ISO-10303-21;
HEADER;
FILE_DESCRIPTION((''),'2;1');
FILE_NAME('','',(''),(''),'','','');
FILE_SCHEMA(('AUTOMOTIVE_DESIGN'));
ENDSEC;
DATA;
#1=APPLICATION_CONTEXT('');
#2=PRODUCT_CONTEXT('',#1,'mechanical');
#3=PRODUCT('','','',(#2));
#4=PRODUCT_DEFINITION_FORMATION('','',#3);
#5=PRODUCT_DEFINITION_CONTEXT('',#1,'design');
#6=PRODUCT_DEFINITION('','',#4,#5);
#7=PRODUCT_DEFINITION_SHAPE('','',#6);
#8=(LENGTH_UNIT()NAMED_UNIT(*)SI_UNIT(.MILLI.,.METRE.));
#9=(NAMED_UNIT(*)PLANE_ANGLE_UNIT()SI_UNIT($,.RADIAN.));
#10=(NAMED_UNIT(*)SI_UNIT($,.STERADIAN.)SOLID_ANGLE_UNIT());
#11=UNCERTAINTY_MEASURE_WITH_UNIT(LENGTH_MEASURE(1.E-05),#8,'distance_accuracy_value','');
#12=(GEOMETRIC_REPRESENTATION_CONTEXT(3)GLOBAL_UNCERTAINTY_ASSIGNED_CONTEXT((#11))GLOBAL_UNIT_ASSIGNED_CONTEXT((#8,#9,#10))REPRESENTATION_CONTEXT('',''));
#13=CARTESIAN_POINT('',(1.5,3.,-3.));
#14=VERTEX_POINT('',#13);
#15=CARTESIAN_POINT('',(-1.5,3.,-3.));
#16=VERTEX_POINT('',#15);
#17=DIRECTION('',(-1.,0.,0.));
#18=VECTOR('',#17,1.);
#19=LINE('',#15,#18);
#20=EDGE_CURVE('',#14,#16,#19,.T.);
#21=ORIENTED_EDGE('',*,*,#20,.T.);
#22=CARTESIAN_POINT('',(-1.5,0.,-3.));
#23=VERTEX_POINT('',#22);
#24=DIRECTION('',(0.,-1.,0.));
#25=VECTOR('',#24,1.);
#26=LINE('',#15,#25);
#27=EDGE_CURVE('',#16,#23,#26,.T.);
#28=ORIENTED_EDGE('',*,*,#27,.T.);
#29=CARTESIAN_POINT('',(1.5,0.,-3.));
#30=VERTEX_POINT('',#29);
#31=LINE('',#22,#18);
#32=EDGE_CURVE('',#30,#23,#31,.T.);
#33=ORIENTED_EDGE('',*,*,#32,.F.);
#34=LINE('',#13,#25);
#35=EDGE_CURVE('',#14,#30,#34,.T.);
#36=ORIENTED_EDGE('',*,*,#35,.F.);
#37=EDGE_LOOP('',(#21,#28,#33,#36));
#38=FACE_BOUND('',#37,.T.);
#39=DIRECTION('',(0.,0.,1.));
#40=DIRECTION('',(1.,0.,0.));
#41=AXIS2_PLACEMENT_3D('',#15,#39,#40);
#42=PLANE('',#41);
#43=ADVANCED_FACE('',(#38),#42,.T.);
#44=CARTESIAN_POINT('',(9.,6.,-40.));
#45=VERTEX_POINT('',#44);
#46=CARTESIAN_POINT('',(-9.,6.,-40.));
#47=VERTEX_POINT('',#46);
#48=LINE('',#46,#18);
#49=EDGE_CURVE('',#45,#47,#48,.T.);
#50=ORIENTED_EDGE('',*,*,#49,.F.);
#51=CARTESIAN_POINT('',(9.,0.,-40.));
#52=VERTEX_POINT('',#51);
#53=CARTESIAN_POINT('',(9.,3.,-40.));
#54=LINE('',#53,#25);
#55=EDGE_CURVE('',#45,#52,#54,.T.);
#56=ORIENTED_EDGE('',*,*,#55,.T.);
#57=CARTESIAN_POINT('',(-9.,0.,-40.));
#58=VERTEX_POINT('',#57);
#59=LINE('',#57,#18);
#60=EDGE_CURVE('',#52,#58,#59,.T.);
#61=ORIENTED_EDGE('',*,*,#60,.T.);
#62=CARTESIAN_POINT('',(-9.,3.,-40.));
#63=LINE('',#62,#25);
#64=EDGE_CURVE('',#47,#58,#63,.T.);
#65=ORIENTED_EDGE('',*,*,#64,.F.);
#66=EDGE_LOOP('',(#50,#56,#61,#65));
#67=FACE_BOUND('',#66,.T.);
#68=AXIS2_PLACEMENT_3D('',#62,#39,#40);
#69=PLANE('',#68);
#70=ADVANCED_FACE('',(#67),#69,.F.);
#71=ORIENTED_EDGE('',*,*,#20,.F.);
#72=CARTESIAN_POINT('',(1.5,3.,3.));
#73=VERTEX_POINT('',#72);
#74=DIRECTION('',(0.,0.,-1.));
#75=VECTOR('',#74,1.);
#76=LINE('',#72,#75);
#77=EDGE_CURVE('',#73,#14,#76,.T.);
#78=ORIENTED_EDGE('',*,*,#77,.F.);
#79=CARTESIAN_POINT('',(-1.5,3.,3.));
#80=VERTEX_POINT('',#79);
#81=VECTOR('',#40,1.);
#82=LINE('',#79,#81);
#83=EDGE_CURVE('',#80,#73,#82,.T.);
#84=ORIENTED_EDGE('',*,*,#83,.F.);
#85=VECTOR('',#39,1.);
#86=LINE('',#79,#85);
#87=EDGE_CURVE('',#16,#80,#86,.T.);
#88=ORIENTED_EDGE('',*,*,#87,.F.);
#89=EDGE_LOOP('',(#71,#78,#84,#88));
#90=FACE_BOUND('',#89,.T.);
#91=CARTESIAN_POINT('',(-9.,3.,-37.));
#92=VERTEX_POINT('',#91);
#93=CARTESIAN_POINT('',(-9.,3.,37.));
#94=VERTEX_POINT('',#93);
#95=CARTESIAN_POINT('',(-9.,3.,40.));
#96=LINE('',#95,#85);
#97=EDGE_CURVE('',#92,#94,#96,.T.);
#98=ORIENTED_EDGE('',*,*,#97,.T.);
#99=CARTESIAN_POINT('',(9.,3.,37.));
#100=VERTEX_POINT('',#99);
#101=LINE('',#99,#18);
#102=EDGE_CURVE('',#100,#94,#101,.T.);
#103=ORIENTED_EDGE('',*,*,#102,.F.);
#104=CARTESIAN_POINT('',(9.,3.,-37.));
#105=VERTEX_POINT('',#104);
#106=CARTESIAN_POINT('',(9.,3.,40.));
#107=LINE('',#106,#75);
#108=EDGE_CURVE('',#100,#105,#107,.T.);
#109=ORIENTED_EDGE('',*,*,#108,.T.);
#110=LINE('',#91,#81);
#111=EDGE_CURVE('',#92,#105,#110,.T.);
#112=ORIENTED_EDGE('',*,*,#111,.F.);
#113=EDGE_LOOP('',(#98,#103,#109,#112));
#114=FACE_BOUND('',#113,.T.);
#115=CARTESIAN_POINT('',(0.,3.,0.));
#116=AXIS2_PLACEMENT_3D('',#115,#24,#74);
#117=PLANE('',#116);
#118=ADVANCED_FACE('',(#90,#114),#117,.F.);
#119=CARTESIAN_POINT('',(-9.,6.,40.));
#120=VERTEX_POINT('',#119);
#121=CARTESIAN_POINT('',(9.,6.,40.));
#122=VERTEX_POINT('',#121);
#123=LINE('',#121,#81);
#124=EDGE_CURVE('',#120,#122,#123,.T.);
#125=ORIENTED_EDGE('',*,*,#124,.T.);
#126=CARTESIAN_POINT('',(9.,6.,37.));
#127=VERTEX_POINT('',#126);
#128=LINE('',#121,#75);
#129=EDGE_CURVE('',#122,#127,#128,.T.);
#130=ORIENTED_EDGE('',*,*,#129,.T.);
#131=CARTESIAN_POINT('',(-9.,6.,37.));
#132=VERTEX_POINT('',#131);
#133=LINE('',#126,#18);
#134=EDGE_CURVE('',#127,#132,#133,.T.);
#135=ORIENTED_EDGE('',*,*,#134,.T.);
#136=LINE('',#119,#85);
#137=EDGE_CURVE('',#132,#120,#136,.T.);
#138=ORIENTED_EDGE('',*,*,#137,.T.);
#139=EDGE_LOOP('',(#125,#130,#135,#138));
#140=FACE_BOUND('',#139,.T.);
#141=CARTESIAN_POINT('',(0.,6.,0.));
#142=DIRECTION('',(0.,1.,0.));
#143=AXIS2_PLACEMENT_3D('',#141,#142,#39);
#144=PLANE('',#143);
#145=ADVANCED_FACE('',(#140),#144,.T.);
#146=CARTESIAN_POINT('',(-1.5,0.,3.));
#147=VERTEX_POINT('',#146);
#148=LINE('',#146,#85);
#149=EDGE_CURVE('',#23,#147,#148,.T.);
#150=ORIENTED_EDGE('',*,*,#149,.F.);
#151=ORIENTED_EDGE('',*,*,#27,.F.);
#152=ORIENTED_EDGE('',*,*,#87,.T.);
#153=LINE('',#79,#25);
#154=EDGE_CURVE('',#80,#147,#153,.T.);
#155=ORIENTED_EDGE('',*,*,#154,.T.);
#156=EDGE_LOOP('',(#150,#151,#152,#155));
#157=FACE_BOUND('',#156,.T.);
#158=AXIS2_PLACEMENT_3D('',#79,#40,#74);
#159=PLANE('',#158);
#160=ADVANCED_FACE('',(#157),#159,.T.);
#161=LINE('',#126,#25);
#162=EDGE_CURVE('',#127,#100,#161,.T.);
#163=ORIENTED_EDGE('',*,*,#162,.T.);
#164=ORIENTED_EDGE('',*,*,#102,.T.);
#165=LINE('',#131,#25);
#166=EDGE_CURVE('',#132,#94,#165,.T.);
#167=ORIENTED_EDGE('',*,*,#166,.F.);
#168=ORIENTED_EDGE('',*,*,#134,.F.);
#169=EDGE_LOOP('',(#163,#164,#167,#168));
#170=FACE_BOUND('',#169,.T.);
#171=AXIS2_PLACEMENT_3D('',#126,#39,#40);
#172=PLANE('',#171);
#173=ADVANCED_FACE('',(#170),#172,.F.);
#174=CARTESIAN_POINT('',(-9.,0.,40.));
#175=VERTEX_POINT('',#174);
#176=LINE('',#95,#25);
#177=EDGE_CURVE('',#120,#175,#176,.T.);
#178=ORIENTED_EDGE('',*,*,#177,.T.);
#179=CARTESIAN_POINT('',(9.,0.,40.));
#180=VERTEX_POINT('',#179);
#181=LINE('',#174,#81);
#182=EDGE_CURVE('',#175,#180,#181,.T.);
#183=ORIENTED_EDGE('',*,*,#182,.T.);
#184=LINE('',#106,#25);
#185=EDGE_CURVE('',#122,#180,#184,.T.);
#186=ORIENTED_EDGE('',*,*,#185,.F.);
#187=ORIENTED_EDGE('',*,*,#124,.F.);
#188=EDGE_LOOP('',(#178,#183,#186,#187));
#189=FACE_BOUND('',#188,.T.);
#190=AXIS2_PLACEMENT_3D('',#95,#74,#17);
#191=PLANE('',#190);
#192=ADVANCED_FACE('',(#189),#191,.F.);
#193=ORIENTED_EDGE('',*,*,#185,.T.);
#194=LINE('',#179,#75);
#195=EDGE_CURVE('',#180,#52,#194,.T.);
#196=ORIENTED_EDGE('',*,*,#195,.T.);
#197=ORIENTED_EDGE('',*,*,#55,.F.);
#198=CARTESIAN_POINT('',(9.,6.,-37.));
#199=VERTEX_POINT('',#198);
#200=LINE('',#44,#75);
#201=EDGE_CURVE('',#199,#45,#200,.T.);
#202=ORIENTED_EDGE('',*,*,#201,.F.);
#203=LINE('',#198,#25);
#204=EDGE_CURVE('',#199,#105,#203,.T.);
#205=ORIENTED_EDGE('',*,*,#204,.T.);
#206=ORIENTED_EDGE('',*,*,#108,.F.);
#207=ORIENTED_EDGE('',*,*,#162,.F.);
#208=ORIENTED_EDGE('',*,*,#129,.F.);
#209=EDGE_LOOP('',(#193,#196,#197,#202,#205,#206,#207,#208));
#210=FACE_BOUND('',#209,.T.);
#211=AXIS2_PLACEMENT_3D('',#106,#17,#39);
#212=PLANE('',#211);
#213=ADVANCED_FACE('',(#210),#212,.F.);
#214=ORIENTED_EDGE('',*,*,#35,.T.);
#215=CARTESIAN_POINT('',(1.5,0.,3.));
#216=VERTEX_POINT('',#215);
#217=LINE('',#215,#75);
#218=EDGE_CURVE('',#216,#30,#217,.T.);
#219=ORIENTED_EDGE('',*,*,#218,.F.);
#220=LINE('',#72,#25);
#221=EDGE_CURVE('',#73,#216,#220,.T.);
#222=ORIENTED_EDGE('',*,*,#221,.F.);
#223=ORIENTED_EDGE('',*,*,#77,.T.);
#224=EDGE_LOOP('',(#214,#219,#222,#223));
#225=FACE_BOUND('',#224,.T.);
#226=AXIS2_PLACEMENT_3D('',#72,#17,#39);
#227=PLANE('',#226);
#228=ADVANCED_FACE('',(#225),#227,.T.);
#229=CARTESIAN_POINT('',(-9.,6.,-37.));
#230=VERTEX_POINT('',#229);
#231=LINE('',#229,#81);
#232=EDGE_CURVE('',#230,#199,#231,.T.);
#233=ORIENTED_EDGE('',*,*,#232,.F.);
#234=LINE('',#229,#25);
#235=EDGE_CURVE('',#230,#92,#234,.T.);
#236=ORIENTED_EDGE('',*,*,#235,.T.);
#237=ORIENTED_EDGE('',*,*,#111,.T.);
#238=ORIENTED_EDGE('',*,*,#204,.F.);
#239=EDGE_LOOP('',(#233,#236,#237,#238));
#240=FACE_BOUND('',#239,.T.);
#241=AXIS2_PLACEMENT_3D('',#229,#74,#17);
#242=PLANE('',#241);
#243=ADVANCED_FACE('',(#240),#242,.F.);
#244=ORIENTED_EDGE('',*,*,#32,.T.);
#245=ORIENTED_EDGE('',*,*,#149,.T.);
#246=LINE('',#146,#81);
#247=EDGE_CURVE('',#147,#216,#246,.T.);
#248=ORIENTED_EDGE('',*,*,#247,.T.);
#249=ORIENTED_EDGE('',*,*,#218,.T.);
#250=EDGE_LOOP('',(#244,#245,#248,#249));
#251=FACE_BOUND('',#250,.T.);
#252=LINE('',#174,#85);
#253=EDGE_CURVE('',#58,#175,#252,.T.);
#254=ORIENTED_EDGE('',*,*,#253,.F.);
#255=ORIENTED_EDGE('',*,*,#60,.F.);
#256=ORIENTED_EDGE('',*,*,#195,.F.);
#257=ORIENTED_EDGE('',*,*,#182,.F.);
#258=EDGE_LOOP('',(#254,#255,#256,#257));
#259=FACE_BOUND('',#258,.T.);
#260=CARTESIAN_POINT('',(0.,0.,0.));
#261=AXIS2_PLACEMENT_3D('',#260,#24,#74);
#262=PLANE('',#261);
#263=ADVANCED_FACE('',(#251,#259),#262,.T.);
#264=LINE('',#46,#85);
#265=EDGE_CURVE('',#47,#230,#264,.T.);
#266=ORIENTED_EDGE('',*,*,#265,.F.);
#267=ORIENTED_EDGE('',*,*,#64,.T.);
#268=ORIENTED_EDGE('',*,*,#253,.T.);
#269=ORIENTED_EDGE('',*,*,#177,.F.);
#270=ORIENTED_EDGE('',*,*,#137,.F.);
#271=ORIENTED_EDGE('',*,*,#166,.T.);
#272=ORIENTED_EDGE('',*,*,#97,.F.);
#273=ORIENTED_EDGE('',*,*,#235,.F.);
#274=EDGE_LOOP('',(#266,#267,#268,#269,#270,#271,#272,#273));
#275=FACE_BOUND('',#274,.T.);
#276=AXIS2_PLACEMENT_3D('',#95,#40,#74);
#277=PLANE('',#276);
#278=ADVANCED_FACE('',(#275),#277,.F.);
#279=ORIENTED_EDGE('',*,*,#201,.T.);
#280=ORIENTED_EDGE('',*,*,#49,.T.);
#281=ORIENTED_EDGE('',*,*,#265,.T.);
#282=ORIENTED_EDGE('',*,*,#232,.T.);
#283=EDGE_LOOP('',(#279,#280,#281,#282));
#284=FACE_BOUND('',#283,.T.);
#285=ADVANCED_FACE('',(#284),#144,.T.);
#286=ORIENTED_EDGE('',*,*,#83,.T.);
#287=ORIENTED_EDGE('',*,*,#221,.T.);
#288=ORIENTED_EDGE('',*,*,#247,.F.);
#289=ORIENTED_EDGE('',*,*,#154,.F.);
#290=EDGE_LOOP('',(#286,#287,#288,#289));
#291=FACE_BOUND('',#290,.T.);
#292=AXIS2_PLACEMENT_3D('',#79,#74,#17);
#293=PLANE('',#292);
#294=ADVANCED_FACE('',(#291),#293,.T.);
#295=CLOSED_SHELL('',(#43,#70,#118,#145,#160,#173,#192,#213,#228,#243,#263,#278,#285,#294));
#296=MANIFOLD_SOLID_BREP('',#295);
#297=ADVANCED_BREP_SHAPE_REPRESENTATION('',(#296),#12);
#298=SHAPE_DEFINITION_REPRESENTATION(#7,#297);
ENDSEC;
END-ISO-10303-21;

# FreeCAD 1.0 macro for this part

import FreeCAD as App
import Part
import Sketcher

doc = App.newDocument("Part")
body = doc.addObject("PartDesign::Body", "Body")

sketch1 = doc.addObject("Sketcher::SketchObject", "Sketch")
body.addObject(sketch1)
sketch1.AttachmentSupport = (doc.XZ_Plane, [""])
sketch1.MapMode = "FlatFace"
sketch1.addGeometry([
    Part.LineSegment(App.Vector(-9, -40, 0), App.Vector(-9, 40, 0)),
    Part.LineSegment(App.Vector(-9, 40, 0), App.Vector(9, 40, 0)),
    Part.LineSegment(App.Vector(9, 40, 0), App.Vector(9, -40, 0)),
    Part.LineSegment(App.Vector(9, -40, 0), App.Vector(-9, -40, 0)),
    Part.LineSegment(App.Vector(1.5, 3, 0), App.Vector(-1.5, 3, 0)),
    Part.LineSegment(App.Vector(-1.5, 3, 0), App.Vector(-1.5, -3, 0)),
    Part.LineSegment(App.Vector(-1.5, -3, 0), App.Vector(1.5, -3, 0)),
    Part.LineSegment(App.Vector(1.5, -3, 0), App.Vector(1.5, 3, 0)),
], False)
sketch1.addConstraint([
    Sketcher.Constraint("Coincident", 0, 2, 1, 1),
    Sketcher.Constraint("Coincident", 1, 2, 2, 1),
    Sketcher.Constraint("Coincident", 2, 2, 3, 1),
    Sketcher.Constraint("Coincident", 3, 2, 0, 1),
    Sketcher.Constraint("Coincident", 4, 2, 5, 1),
    Sketcher.Constraint("Coincident", 5, 2, 6, 1),
    Sketcher.Constraint("Coincident", 6, 2, 7, 1),
    Sketcher.Constraint("Coincident", 7, 2, 4, 1),
    Sketcher.Constraint("Vertical", 0),
    Sketcher.Constraint("Horizontal", 1),
    Sketcher.Constraint("Vertical", 2),
    Sketcher.Constraint("Horizontal", 3),
    Sketcher.Constraint("Horizontal", 4),
    Sketcher.Constraint("Vertical", 5),
    Sketcher.Constraint("Horizontal", 6),
    Sketcher.Constraint("Vertical", 7),
    Sketcher.Constraint("Symmetric", 0, 2, 2, 2, -1, 1),
    Sketcher.Constraint("Symmetric", 4, 2, 6, 2, -1, 1),
    Sketcher.Constraint("DistanceX", 1, 1, 1, 2, 18.0),
    Sketcher.Constraint("DistanceX", 4, 2, 4, 1, 3.0),
    Sketcher.Constraint("DistanceY", 0, 1, 0, 2, 80.0),
    Sketcher.Constraint("DistanceY", 5, 2, 5, 1, 6.0),
])
pad1 = doc.addObject("PartDesign::Pad", "Pad")
body.addObject(pad1)
pad1.Profile = sketch1
pad1.Length = 3
pad1.Reversed = True

sketch2 = doc.addObject("Sketcher::SketchObject", "Sketch001")
body.addObject(sketch2)
sketch2.AttachmentSupport = (doc.XZ_Plane, [""])
sketch2.MapMode = "FlatFace"
sketch2.AttachmentOffset = App.Placement(App.Vector(0, 0, -3), App.Rotation())
sketch2.addGeometry([
    Part.LineSegment(App.Vector(-9, 37, 0), App.Vector(-9, 40, 0)),
    Part.LineSegment(App.Vector(-9, 40, 0), App.Vector(9, 40, 0)),
    Part.LineSegment(App.Vector(9, 40, 0), App.Vector(9, 37, 0)),
    Part.LineSegment(App.Vector(9, 37, 0), App.Vector(-9, 37, 0)),
    Part.LineSegment(App.Vector(-9, -40, 0), App.Vector(-9, -37, 0)),
    Part.LineSegment(App.Vector(-9, -37, 0), App.Vector(9, -37, 0)),
    Part.LineSegment(App.Vector(9, -37, 0), App.Vector(9, -40, 0)),
    Part.LineSegment(App.Vector(9, -40, 0), App.Vector(-9, -40, 0)),
], False)
sketch2.addConstraint([
    Sketcher.Constraint("Coincident", 0, 2, 1, 1),
    Sketcher.Constraint("Coincident", 1, 2, 2, 1),
    Sketcher.Constraint("Coincident", 2, 2, 3, 1),
    Sketcher.Constraint("Coincident", 3, 2, 0, 1),
    Sketcher.Constraint("Coincident", 4, 2, 5, 1),
    Sketcher.Constraint("Coincident", 5, 2, 6, 1),
    Sketcher.Constraint("Coincident", 6, 2, 7, 1),
    Sketcher.Constraint("Coincident", 7, 2, 4, 1),
    Sketcher.Constraint("Vertical", 0),
    Sketcher.Constraint("Horizontal", 1),
    Sketcher.Constraint("Vertical", 2),
    Sketcher.Constraint("Horizontal", 3),
    Sketcher.Constraint("Vertical", 4),
    Sketcher.Constraint("Horizontal", 5),
    Sketcher.Constraint("Vertical", 6),
    Sketcher.Constraint("Horizontal", 7),
    Sketcher.Constraint("Symmetric", 2, 2, 4, 2, -1, 1),
    Sketcher.Constraint("Symmetric", 0, 2, 6, 2, -1, 1),
    Sketcher.Constraint("Vertical", 3, 2, 4, 2),
    Sketcher.Constraint("DistanceX", 1, 1, 1, 2, 18.0),
    Sketcher.Constraint("DistanceY", 0, 1, 0, 2, 3.0),
    Sketcher.Constraint("DistanceY", -1, 1, 0, 2, 40.0),
])
pad2 = doc.addObject("PartDesign::Pad", "Pad001")
body.addObject(pad2)
pad2.Profile = sketch2
pad2.Length = 3
pad2.Reversed = True

doc.recompute()
